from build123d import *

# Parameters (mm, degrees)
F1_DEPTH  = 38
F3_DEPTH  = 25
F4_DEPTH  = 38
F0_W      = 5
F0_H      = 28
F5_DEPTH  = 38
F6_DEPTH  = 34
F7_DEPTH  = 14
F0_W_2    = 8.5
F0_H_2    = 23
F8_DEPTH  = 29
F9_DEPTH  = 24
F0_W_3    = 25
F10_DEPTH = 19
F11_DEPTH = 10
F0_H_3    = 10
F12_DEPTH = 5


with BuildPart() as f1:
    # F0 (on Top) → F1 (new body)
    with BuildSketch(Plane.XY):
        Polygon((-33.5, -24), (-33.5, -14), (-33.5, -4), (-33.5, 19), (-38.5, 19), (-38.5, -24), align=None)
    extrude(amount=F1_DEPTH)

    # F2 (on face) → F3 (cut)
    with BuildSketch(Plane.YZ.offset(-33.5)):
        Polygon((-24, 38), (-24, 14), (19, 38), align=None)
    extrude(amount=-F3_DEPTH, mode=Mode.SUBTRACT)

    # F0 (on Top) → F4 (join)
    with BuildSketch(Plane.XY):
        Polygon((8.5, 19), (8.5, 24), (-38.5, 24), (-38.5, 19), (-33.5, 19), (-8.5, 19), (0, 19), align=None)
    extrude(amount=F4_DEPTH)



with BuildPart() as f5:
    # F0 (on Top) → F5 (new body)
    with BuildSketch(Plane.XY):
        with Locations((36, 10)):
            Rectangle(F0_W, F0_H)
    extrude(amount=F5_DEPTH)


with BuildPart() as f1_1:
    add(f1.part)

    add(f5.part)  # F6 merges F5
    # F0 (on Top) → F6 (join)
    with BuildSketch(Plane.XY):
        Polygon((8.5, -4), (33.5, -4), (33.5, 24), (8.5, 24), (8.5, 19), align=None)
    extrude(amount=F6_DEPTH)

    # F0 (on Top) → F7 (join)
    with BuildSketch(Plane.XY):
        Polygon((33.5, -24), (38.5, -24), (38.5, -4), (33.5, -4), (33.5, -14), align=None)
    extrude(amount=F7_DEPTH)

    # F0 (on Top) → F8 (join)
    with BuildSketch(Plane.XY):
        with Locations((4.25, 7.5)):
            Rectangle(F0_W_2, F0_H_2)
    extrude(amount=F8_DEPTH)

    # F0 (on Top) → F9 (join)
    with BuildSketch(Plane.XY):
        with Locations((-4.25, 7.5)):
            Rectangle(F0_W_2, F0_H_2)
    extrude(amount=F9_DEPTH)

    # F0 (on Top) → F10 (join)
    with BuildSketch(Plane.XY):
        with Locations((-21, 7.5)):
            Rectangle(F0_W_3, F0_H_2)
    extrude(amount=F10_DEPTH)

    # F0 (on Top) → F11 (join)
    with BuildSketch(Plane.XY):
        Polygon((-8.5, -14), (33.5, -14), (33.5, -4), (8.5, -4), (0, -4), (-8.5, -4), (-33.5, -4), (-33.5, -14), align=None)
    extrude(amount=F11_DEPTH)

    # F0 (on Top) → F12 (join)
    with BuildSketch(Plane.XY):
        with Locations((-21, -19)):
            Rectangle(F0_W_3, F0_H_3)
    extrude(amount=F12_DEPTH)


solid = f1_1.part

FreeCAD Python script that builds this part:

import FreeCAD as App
import Part
import Sketcher
Q = App.Units.Quantity


def add_polygon(sketch, points):
    """Adds a closed chain of lines whose ends are joined by coincident constraints."""
    first, n = sketch.GeometryCount, len(points)
    for a, b in zip(points, points[1:] + points[:1]):
        sketch.addGeometry(Part.LineSegment(App.Vector(*a, 0), App.Vector(*b, 0)), False)
    for i in range(n):
        sketch.addConstraint(Sketcher.Constraint("Coincident", first + i, 2, first + (i + 1) % n, 1))

doc = App.newDocument("Part")
body = doc.addObject("PartDesign::Body", "Body")

# Sketch on XY plane
sketch1 = body.newObject("Sketcher::SketchObject", "Sketch")
sketch1.AttachmentSupport = (doc.getObject("XY_Plane"), [""])
sketch1.MapMode = "FlatFace"
add_polygon(sketch1, [(-34, -24), (-34, 19), (-38, 19), (-38, -24)])  # lines 0-3
sketch1.addConstraint(Sketcher.Constraint("Vertical", 0))
sketch1.addConstraint(Sketcher.Constraint("Horizontal", 1))
sketch1.addConstraint(Sketcher.Constraint("Vertical", 2))
sketch1.addConstraint(Sketcher.Constraint("Horizontal", 3))
sketch1.addConstraint(Sketcher.Constraint("DistanceX", 1, 2, 1, 1, Q("5 mm")))
sketch1.addConstraint(Sketcher.Constraint("DistanceY", 0, 1, 0, 2, Q("43 mm")))
sketch1.addConstraint(Sketcher.Constraint("DistanceY", -1, 1, 0, 2, Q("19 mm")))
sketch1.addConstraint(Sketcher.Constraint("DistanceX", 0, 2, -1, 1, Q("33.5 mm")))
pad1 = body.newObject("PartDesign::Pad", "Pad")
pad1.Profile = sketch1
pad1.Length = 38

# Sketch on YZ plane
sketch2 = body.newObject("Sketcher::SketchObject", "Sketch001")
sketch2.AttachmentSupport = (doc.getObject("YZ_Plane"), [""])
sketch2.MapMode = "FlatFace"
sketch2.AttachmentOffset = App.Placement(App.Vector(0, 0, -33.5), App.Rotation())
add_polygon(sketch2, [(-24, 38), (-24, 14), (19, 38)])  # lines 0-2
sketch2.addConstraint(Sketcher.Constraint("Vertical", 0))
sketch2.addConstraint(Sketcher.Constraint("Horizontal", 2))
sketch2.addConstraint(Sketcher.Constraint("DistanceX", 2, 2, 2, 1, Q("43 mm")))
sketch2.addConstraint(Sketcher.Constraint("DistanceY", 0, 2, 0, 1, Q("24 mm")))
sketch2.addConstraint(Sketcher.Constraint("DistanceX", 0, 2, -1, 1, Q("24 mm")))
sketch2.addConstraint(Sketcher.Constraint("DistanceY", -1, 1, 0, 2, Q("14 mm")))
pocket1 = body.newObject("PartDesign::Pocket", "Pocket")
pocket1.Profile = sketch2
pocket1.Length = 25

# Sketch on XY plane
sketch3 = body.newObject("Sketcher::SketchObject", "Sketch002")
sketch3.AttachmentSupport = (doc.getObject("XY_Plane"), [""])
sketch3.MapMode = "FlatFace"
add_polygon(sketch3, [(8, 19), (8, 24), (-38, 24), (-38, 19)])  # lines 0-3
sketch3.addConstraint(Sketcher.Constraint("Vertical", 0))
sketch3.addConstraint(Sketcher.Constraint("Horizontal", 1))
sketch3.addConstraint(Sketcher.Constraint("Vertical", 2))
sketch3.addConstraint(Sketcher.Constraint("Horizontal", 3))
sketch3.addConstraint(Sketcher.Constraint("DistanceX", 1, 2, 1, 1, Q("47 mm")))
sketch3.addConstraint(Sketcher.Constraint("DistanceY", 0, 1, 0, 2, Q("5 mm")))
sketch3.addConstraint(Sketcher.Constraint("DistanceY", -1, 1, 0, 2, Q("24 mm")))
sketch3.addConstraint(Sketcher.Constraint("DistanceX", -1, 1, 0, 2, Q("8.5 mm")))
pad2 = body.newObject("PartDesign::Pad", "Pad001")
pad2.Profile = sketch3
pad2.Length = 38
body2 = doc.addObject("PartDesign::Body", "Body001")

# Sketch on XY plane
sketch4 = body2.newObject("Sketcher::SketchObject", "Sketch003")
sketch4.AttachmentSupport = (doc.getObject("XY_Plane001"), [""])
sketch4.MapMode = "FlatFace"
add_polygon(sketch4, [(34, 24), (34, -4), (38, -4), (38, 24)])  # lines 0-3
sketch4.addConstraint(Sketcher.Constraint("Vertical", 0))
sketch4.addConstraint(Sketcher.Constraint("Horizontal", 1))
sketch4.addConstraint(Sketcher.Constraint("Vertical", 2))
sketch4.addConstraint(Sketcher.Constraint("Horizontal", 3))
sketch4.addConstraint(Sketcher.Constraint("DistanceX", 1, 1, 1, 2, Q("5 mm")))
sketch4.addConstraint(Sketcher.Constraint("DistanceY", 0, 2, 0, 1, Q("28 mm")))
sketch4.addConstraint(Sketcher.Constraint("DistanceY", 0, 2, -1, 1, Q("4 mm")))
sketch4.addConstraint(Sketcher.Constraint("DistanceX", -1, 1, 0, 2, Q("33.5 mm")))
pad3 = body2.newObject("PartDesign::Pad", "Pad002")
pad3.Profile = sketch4
pad3.Length = 38
body.AllowCompound = True
doc.recompute()

boolean = body.newObject("PartDesign::Boolean", "Boolean")
boolean.Type = "Fuse"
boolean.addObjects([body2])

# Sketch on XY plane
sketch5 = body.newObject("Sketcher::SketchObject", "Sketch004")
sketch5.AttachmentSupport = (doc.getObject("XY_Plane"), [""])
sketch5.MapMode = "FlatFace"
add_polygon(sketch5, [(8, -4), (34, -4), (34, 24), (8, 24)])  # lines 0-3
sketch5.addConstraint(Sketcher.Constraint("Horizontal", 0))
sketch5.addConstraint(Sketcher.Constraint("Vertical", 1))
sketch5.addConstraint(Sketcher.Constraint("Horizontal", 2))
sketch5.addConstraint(Sketcher.Constraint("Vertical", 3))
sketch5.addConstraint(Sketcher.Constraint("DistanceX", 0, 1, 0, 2, Q("25 mm")))
sketch5.addConstraint(Sketcher.Constraint("DistanceY", 1, 1, 1, 2, Q("28 mm")))
sketch5.addConstraint(Sketcher.Constraint("DistanceY", 0, 2, -1, 1, Q("4 mm")))
sketch5.addConstraint(Sketcher.Constraint("DistanceX", -1, 1, 0, 2, Q("33.5 mm")))
pad4 = body.newObject("PartDesign::Pad", "Pad003")
pad4.Profile = sketch5
pad4.Length = 34

# Sketch on XY plane
sketch6 = body.newObject("Sketcher::SketchObject", "Sketch005")
sketch6.AttachmentSupport = (doc.getObject("XY_Plane"), [""])
sketch6.MapMode = "FlatFace"
add_polygon(sketch6, [(34, -24), (38, -24), (38, -4), (34, -4)])  # lines 0-3
sketch6.addConstraint(Sketcher.Constraint("Horizontal", 0))
sketch6.addConstraint(Sketcher.Constraint("Vertical", 1))
sketch6.addConstraint(Sketcher.Constraint("Horizontal", 2))
sketch6.addConstraint(Sketcher.Constraint("Vertical", 3))
sketch6.addConstraint(Sketcher.Constraint("DistanceX", 0, 1, 0, 2, Q("5 mm")))
sketch6.addConstraint(Sketcher.Constraint("DistanceY", 1, 1, 1, 2, Q("20 mm")))
sketch6.addConstraint(Sketcher.Constraint("DistanceY", 0, 2, -1, 1, Q("24 mm")))
sketch6.addConstraint(Sketcher.Constraint("DistanceX", -1, 1, 0, 2, Q("38.5 mm")))
pad5 = body.newObject("PartDesign::Pad", "Pad004")
pad5.Profile = sketch6
pad5.Length = 14

# Sketch on XY plane
sketch7 = body.newObject("Sketcher::SketchObject", "Sketch006")
sketch7.AttachmentSupport = (doc.getObject("XY_Plane"), [""])
sketch7.MapMode = "FlatFace"
add_polygon(sketch7, [(0, 19), (0, -4), (8, -4), (8, 19)])  # lines 0-3
sketch7.addConstraint(Sketcher.Constraint("Vertical", 0))
sketch7.addConstraint(Sketcher.Constraint("Horizontal", 1))
sketch7.addConstraint(Sketcher.Constraint("Vertical", 2))
sketch7.addConstraint(Sketcher.Constraint("Horizontal", 3))
sketch7.addConstraint(Sketcher.Constraint("PointOnObject", 0, 2, -2))
sketch7.addConstraint(Sketcher.Constraint("DistanceY", 0, 2, 0, 1, Q("23 mm")))
sketch7.addConstraint(Sketcher.Constraint("DistanceX", 1, 1, 1, 2, Q("8.5 mm")))
sketch7.addConstraint(Sketcher.Constraint("DistanceY", 0, 2, -1, 1, Q("4 mm")))
pad6 = body.newObject("PartDesign::Pad", "Pad005")
pad6.Profile = sketch7
pad6.Length = 29

# Sketch on XY plane
sketch8 = body.newObject("Sketcher::SketchObject", "Sketch007")
sketch8.AttachmentSupport = (doc.getObject("XY_Plane"), [""])
sketch8.MapMode = "FlatFace"
add_polygon(sketch8, [(-8, 19), (-8, -4), (0, -4), (0, 19)])  # lines 0-3
sketch8.addConstraint(Sketcher.Constraint("Vertical", 0))
sketch8.addConstraint(Sketcher.Constraint("Horizontal", 1))
sketch8.addConstraint(Sketcher.Constraint("Vertical", 2))
sketch8.addConstraint(Sketcher.Constraint("Horizontal", 3))
sketch8.addConstraint(Sketcher.Constraint("PointOnObject", 1, 2, -2))
sketch8.addConstraint(Sketcher.Constraint("DistanceY", 0, 2, 0, 1, Q("23 mm")))
sketch8.addConstraint(Sketcher.Constraint("DistanceX", 1, 1, 1, 2, Q("8.5 mm")))
sketch8.addConstraint(Sketcher.Constraint("DistanceY", 0, 2, -1, 1, Q("4 mm")))
pad7 = body.newObject("PartDesign::Pad", "Pad006")
pad7.Profile = sketch8
pad7.Length = 24

# Sketch on XY plane
sketch9 = body.newObject("Sketcher::SketchObject", "Sketch008")
sketch9.AttachmentSupport = (doc.getObject("XY_Plane"), [""])
sketch9.MapMode = "FlatFace"
add_polygon(sketch9, [(-34, 19), (-34, -4), (-8, -4), (-8, 19)])  # lines 0-3
sketch9.addConstraint(Sketcher.Constraint("Vertical", 0))
sketch9.addConstraint(Sketcher.Constraint("Horizontal", 1))
sketch9.addConstraint(Sketcher.Constraint("Vertical", 2))
sketch9.addConstraint(Sketcher.Constraint("Horizontal", 3))
sketch9.addConstraint(Sketcher.Constraint("DistanceX", 1, 1, 1, 2, Q("25 mm")))
sketch9.addConstraint(Sketcher.Constraint("DistanceY", 0, 2, 0, 1, Q("23 mm")))
sketch9.addConstraint(Sketcher.Constraint("DistanceY", 0, 2, -1, 1, Q("4 mm")))
sketch9.addConstraint(Sketcher.Constraint("DistanceX", 0, 2, -1, 1, Q("33.5 mm")))
pad8 = body.newObject("PartDesign::Pad", "Pad007")
pad8.Profile = sketch9
pad8.Length = 19

# Sketch on XY plane
sketch10 = body.newObject("Sketcher::SketchObject", "Sketch009")
sketch10.AttachmentSupport = (doc.getObject("XY_Plane"), [""])
sketch10.MapMode = "FlatFace"
add_polygon(sketch10, [(34, -14), (34, -4), (-34, -4), (-34, -14)])  # lines 0-3
sketch10.addConstraint(Sketcher.Constraint("Vertical", 0))
sketch10.addConstraint(Sketcher.Constraint("Horizontal", 1))
sketch10.addConstraint(Sketcher.Constraint("Vertical", 2))
sketch10.addConstraint(Sketcher.Constraint("Horizontal", 3))
sketch10.addConstraint(Sketcher.Constraint("DistanceX", 1, 2, 1, 1, Q("67 mm")))
sketch10.addConstraint(Sketcher.Constraint("DistanceY", 0, 1, 0, 2, Q("10 mm")))
sketch10.addConstraint(Sketcher.Constraint("DistanceY", 0, 2, -1, 1, Q("4 mm")))
sketch10.addConstraint(Sketcher.Constraint("DistanceX", -1, 1, 0, 2, Q("33.5 mm")))
pad9 = body.newObject("PartDesign::Pad", "Pad008")
pad9.Profile = sketch10
pad9.Length = 10

# Sketch on XY plane
sketch11 = body.newObject("Sketcher::SketchObject", "Sketch010")
sketch11.AttachmentSupport = (doc.getObject("XY_Plane"), [""])
sketch11.MapMode = "FlatFace"
add_polygon(sketch11, [(-34, -14), (-34, -24), (-8, -24), (-8, -14)])  # lines 0-3
sketch11.addConstraint(Sketcher.Constraint("Vertical", 0))
sketch11.addConstraint(Sketcher.Constraint("Horizontal", 1))
sketch11.addConstraint(Sketcher.Constraint("Vertical", 2))
sketch11.addConstraint(Sketcher.Constraint("Horizontal", 3))
sketch11.addConstraint(Sketcher.Constraint("DistanceX", 1, 1, 1, 2, Q("25 mm")))
sketch11.addConstraint(Sketcher.Constraint("DistanceY", 0, 2, 0, 1, Q("10 mm")))
sketch11.addConstraint(Sketcher.Constraint("DistanceY", 0, 2, -1, 1, Q("24 mm")))
sketch11.addConstraint(Sketcher.Constraint("DistanceX", 0, 2, -1, 1, Q("33.5 mm")))
pad10 = body.newObject("PartDesign::Pad", "Pad009")
pad10.Profile = sketch11
pad10.Length = 5

doc.recompute()
